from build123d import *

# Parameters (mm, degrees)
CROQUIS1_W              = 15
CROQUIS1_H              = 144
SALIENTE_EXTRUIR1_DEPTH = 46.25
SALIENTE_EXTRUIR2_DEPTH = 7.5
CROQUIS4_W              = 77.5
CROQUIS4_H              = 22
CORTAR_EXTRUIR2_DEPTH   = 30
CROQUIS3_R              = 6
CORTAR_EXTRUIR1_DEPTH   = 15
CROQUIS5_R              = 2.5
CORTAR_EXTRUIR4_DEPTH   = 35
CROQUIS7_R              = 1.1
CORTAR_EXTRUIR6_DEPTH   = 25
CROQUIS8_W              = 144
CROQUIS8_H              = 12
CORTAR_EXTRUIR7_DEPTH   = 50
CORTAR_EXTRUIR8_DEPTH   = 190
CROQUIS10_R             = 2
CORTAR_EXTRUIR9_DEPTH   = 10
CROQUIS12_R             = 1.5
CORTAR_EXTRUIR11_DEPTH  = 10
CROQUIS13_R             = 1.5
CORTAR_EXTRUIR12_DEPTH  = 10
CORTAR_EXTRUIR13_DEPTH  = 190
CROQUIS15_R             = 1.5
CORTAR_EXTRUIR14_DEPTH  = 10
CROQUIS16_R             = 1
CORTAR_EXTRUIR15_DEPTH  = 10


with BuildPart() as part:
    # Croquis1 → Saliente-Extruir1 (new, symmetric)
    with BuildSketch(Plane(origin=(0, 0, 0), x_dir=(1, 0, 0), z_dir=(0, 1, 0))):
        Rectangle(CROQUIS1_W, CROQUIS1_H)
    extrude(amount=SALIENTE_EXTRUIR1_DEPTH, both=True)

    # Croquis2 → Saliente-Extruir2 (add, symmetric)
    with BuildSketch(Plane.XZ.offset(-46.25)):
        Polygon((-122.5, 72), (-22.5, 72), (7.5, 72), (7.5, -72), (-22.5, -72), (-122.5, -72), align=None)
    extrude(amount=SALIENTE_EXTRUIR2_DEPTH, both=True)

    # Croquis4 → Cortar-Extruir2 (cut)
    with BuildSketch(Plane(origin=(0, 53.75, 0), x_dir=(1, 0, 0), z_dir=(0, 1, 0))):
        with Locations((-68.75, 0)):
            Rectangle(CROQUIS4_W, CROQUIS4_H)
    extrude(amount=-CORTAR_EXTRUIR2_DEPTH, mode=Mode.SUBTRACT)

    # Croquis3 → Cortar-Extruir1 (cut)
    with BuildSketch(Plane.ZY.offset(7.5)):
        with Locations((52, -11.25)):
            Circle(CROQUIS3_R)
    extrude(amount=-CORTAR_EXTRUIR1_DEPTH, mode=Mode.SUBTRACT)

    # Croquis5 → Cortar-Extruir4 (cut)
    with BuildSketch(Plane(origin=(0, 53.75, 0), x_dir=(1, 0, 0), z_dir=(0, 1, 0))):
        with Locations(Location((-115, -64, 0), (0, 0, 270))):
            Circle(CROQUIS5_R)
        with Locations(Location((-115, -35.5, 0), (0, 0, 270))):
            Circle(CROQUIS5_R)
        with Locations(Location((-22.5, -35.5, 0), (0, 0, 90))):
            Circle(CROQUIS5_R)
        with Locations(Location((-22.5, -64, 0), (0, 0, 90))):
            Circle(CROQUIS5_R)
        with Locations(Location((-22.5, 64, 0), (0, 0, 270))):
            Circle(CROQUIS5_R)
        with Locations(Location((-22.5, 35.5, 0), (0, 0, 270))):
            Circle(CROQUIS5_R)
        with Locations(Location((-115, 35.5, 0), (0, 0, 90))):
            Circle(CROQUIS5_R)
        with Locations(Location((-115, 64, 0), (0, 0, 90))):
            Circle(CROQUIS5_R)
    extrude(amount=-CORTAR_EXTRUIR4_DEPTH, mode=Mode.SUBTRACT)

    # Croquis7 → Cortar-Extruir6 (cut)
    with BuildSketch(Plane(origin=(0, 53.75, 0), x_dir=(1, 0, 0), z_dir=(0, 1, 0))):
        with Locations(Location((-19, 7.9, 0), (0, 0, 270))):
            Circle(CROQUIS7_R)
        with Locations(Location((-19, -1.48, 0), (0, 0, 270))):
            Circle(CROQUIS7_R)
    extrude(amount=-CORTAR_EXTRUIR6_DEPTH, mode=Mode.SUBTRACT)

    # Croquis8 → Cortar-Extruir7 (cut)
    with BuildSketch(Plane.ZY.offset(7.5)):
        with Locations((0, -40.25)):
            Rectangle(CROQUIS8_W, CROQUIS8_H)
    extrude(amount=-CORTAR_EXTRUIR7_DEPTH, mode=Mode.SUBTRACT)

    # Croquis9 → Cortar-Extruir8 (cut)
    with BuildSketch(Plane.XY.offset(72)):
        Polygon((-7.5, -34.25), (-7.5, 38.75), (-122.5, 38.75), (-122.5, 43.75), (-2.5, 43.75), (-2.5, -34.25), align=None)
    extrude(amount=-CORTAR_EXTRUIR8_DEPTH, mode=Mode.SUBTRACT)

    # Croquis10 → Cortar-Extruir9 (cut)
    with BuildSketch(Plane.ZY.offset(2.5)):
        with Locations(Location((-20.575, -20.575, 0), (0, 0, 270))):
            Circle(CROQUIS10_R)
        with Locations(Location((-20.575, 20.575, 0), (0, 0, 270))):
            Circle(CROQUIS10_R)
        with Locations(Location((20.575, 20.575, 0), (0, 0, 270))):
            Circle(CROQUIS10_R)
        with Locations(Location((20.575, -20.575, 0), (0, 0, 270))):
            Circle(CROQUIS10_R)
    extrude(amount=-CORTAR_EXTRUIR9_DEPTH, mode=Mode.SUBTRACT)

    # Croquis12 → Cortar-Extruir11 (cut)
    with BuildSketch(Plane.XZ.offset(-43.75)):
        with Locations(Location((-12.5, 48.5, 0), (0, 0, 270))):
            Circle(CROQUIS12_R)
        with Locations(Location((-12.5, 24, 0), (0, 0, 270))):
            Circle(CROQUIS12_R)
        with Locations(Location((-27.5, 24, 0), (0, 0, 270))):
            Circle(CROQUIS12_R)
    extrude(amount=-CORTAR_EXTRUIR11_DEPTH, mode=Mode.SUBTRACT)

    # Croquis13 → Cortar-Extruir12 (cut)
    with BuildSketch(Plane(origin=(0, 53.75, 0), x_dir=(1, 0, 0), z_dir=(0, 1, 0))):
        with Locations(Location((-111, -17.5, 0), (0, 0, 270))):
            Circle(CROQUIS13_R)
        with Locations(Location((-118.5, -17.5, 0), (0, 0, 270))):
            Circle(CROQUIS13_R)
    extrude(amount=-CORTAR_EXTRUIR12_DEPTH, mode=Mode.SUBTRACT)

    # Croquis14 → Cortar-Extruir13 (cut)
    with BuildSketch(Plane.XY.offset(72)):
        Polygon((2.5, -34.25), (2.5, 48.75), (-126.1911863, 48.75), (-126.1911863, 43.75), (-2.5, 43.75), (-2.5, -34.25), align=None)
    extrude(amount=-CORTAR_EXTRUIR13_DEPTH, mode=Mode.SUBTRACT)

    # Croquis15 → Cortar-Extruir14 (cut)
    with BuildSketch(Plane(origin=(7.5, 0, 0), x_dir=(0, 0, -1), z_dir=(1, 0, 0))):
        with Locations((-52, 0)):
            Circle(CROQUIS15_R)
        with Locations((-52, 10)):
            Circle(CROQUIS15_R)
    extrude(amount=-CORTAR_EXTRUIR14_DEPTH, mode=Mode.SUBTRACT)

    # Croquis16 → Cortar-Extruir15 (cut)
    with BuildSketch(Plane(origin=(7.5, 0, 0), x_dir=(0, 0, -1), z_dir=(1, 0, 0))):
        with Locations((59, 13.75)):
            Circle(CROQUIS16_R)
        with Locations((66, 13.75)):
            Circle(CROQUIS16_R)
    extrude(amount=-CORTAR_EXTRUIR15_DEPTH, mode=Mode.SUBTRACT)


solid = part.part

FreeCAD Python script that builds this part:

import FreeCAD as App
import Part
import Sketcher
from FreeCAD import Vector

doc = App.newDocument("Part")
body = doc.addObject("PartDesign::Body", "Body")

# Sketch on XZ plane
sketch1 = body.newObject("Sketcher::SketchObject", "Sketch")
sketch1.AttachmentSupport = (doc.getObject("XZ_Plane"), [""])
sketch1.MapMode = "FlatFace"
sketch1.addGeometry(Part.LineSegment(Vector(-8, -72, 0), Vector(-8, 72, 0)), False)
sketch1.addGeometry(Part.LineSegment(Vector(-8, 72, 0), Vector(8, 72, 0)), False)
sketch1.addGeometry(Part.LineSegment(Vector(8, 72, 0), Vector(8, -72, 0)), False)
sketch1.addGeometry(Part.LineSegment(Vector(8, -72, 0), Vector(-8, -72, 0)), False)
sketch1.addConstraint(Sketcher.Constraint("Coincident", 0, 2, 1, 1))
sketch1.addConstraint(Sketcher.Constraint("Coincident", 1, 2, 2, 1))
sketch1.addConstraint(Sketcher.Constraint("Coincident", 2, 2, 3, 1))
sketch1.addConstraint(Sketcher.Constraint("Coincident", 3, 2, 0, 1))
sketch1.addConstraint(Sketcher.Constraint("Vertical", 0))
sketch1.addConstraint(Sketcher.Constraint("Horizontal", 1))
sketch1.addConstraint(Sketcher.Constraint("Vertical", 2))
sketch1.addConstraint(Sketcher.Constraint("Horizontal", 3))
sketch1.addConstraint(Sketcher.Constraint("Symmetric", 0, 2, 2, 2, -1, 1))
sketch1.addConstraint(Sketcher.Constraint("DistanceX", 1, 1, 1, 2, 15.0))
sketch1.addConstraint(Sketcher.Constraint("DistanceY", 0, 1, 0, 2, 144.0))
pad1 = body.newObject("PartDesign::Pad", "Pad")
pad1.Profile = sketch1
pad1.Length = 92.5
pad1.Midplane = True

# Sketch on XZ plane
sketch2 = body.newObject("Sketcher::SketchObject", "Sketch001")
sketch2.AttachmentSupport = (doc.getObject("XZ_Plane"), [""])
sketch2.MapMode = "FlatFace"
sketch2.AttachmentOffset = App.Placement(Vector(0, 0, -46.25), App.Rotation())
sketch2.addGeometry(Part.LineSegment(Vector(8, 72, 0), Vector(-122, 72, 0)), False)
sketch2.addGeometry(Part.LineSegment(Vector(-122, 72, 0), Vector(-122, -72, 0)), False)
sketch2.addGeometry(Part.LineSegment(Vector(-122, -72, 0), Vector(8, -72, 0)), False)
sketch2.addGeometry(Part.LineSegment(Vector(8, -72, 0), Vector(8, 72, 0)), False)
sketch2.addConstraint(Sketcher.Constraint("Coincident", 0, 2, 1, 1))
sketch2.addConstraint(Sketcher.Constraint("Coincident", 1, 2, 2, 1))
sketch2.addConstraint(Sketcher.Constraint("Coincident", 2, 2, 3, 1))
sketch2.addConstraint(Sketcher.Constraint("Coincident", 3, 2, 0, 1))
sketch2.addConstraint(Sketcher.Constraint("Horizontal", 0))
sketch2.addConstraint(Sketcher.Constraint("Vertical", 1))
sketch2.addConstraint(Sketcher.Constraint("Horizontal", 2))
sketch2.addConstraint(Sketcher.Constraint("Vertical", 3))
sketch2.addConstraint(Sketcher.Constraint("DistanceX", 0, 2, 0, 1, 130.0))
sketch2.addConstraint(Sketcher.Constraint("DistanceY", 1, 2, 1, 1, 144.0))
sketch2.addConstraint(Sketcher.Constraint("DistanceY", -1, 1, 0, 2, 72.0))
sketch2.addConstraint(Sketcher.Constraint("DistanceX", 0, 2, -1, 1, 122.5))
pad2 = body.newObject("PartDesign::Pad", "Pad001")
pad2.Profile = sketch2
pad2.Length = 15
pad2.Midplane = True

# Sketch on XZ plane
sketch3 = body.newObject("Sketcher::SketchObject", "Sketch002")
sketch3.AttachmentSupport = (doc.getObject("XZ_Plane"), [""])
sketch3.MapMode = "FlatFace"
sketch3.AttachmentOffset = App.Placement(Vector(0, 0, -53.75), App.Rotation())
sketch3.addGeometry(Part.LineSegment(Vector(-108, -11, 0), Vector(-108, 11, 0)), False)
sketch3.addGeometry(Part.LineSegment(Vector(-108, 11, 0), Vector(-30, 11, 0)), False)
sketch3.addGeometry(Part.LineSegment(Vector(-30, 11, 0), Vector(-30, -11, 0)), False)
sketch3.addGeometry(Part.LineSegment(Vector(-30, -11, 0), Vector(-108, -11, 0)), False)
sketch3.addConstraint(Sketcher.Constraint("Coincident", 0, 2, 1, 1))
sketch3.addConstraint(Sketcher.Constraint("Coincident", 1, 2, 2, 1))
sketch3.addConstraint(Sketcher.Constraint("Coincident", 2, 2, 3, 1))
sketch3.addConstraint(Sketcher.Constraint("Coincident", 3, 2, 0, 1))
sketch3.addConstraint(Sketcher.Constraint("Vertical", 0))
sketch3.addConstraint(Sketcher.Constraint("Horizontal", 1))
sketch3.addConstraint(Sketcher.Constraint("Vertical", 2))
sketch3.addConstraint(Sketcher.Constraint("Horizontal", 3))
sketch3.addConstraint(Sketcher.Constraint("DistanceY", 0, 1, 0, 2, 22.0))
sketch3.addConstraint(Sketcher.Constraint("DistanceX", 1, 1, 1, 2, 77.5))
sketch3.addConstraint(Sketcher.Constraint("DistanceY", -1, 1, 0, 2, 11.0))
sketch3.addConstraint(Sketcher.Constraint("DistanceX", 1, 2, -1, 1, 30.0))
pocket1 = body.newObject("PartDesign::Pocket", "Pocket")
pocket1.Profile = sketch3
pocket1.Length = 30
pocket1.Reversed = True

# Sketch on YZ plane
sketch4 = body.newObject("Sketcher::SketchObject", "Sketch003")
sketch4.AttachmentSupport = (doc.getObject("YZ_Plane"), [""])
sketch4.MapMode = "FlatFace"
sketch4.AttachmentOffset = App.Placement(Vector(0, 0, -7.5), App.Rotation())
sketch4.addGeometry(Part.Circle(Vector(-11, 52, 0), Vector(0, 0, 1), 6), False)
sketch4.addConstraint(Sketcher.Constraint("Diameter", 0, 12.0))
sketch4.addConstraint(Sketcher.Constraint("DistanceY", -1, 1, 0, 3, 52.0))
sketch4.addConstraint(Sketcher.Constraint("DistanceX", 0, 3, -1, 1, 11.25))
pocket2 = body.newObject("PartDesign::Pocket", "Pocket001")
pocket2.Profile = sketch4
pocket2.Length = 15
pocket2.Reversed = True

# Sketch on XZ plane
sketch5 = body.newObject("Sketcher::SketchObject", "Sketch004")
sketch5.AttachmentSupport = (doc.getObject("XZ_Plane"), [""])
sketch5.MapMode = "FlatFace"
sketch5.AttachmentOffset = App.Placement(Vector(0, 0, -53.75), App.Rotation())
sketch5.addGeometry(Part.Circle(Vector(-115, 64, 0), Vector(0, 0, 1), 2.5), False)
sketch5.addGeometry(Part.Circle(Vector(-115, 35.5, 0), Vector(0, 0, 1), 2.5), False)
sketch5.addGeometry(Part.Circle(Vector(-22.5, 35.5, 0), Vector(0, 0, 1), 2.5), False)
sketch5.addGeometry(Part.Circle(Vector(-22.5, 64, 0), Vector(0, 0, 1), 2.5), False)
sketch5.addGeometry(Part.Circle(Vector(-22.5, -64, 0), Vector(0, 0, 1), 2.5), False)
sketch5.addGeometry(Part.Circle(Vector(-22.5, -35.5, 0), Vector(0, 0, 1), 2.5), False)
sketch5.addGeometry(Part.Circle(Vector(-115, -35.5, 0), Vector(0, 0, 1), 2.5), False)
sketch5.addGeometry(Part.Circle(Vector(-115, -64, 0), Vector(0, 0, 1), 2.5), False)
sketch5.addConstraint(Sketcher.Constraint("Equal", 0, 1))
sketch5.addConstraint(Sketcher.Constraint("Equal", 1, 2))
sketch5.addConstraint(Sketcher.Constraint("Equal", 2, 3))
sketch5.addConstraint(Sketcher.Constraint("Equal", 3, 4))
sketch5.addConstraint(Sketcher.Constraint("Equal", 4, 5))
sketch5.addConstraint(Sketcher.Constraint("Equal", 5, 6))
sketch5.addConstraint(Sketcher.Constraint("Equal", 6, 7))
sketch5.addConstraint(Sketcher.Constraint("Symmetric", 3, 3, 4, 3, -1))
sketch5.addConstraint(Sketcher.Constraint("Symmetric", 2, 3, 5, 3, -1))
sketch5.addConstraint(Sketcher.Constraint("Symmetric", 1, 3, 6, 3, -1))
sketch5.addConstraint(Sketcher.Constraint("Symmetric", 0, 3, 7, 3, -1))
sketch5.addConstraint(Sketcher.Constraint("Horizontal", 1, 3, 2, 3))
sketch5.addConstraint(Sketcher.Constraint("Horizontal", 0, 3, 3, 3))
sketch5.addConstraint(Sketcher.Constraint("Vertical", 0, 3, 1, 3))
sketch5.addConstraint(Sketcher.Constraint("Vertical", 2, 3, 3, 3))
sketch5.addConstraint(Sketcher.Constraint("Diameter", 0, 5.0))
sketch5.addConstraint(Sketcher.Constraint("DistanceX", 0, 3, -1, 1, 115.0))
sketch5.addConstraint(Sketcher.Constraint("DistanceY", -1, 1, 0, 3, 64.0))
sketch5.addConstraint(Sketcher.Constraint("DistanceY", 5, 3, 2, 3, 71.0))
sketch5.addConstraint(Sketcher.Constraint("DistanceX", 2, 3, -1, 1, 22.5))
pocket3 = body.newObject("PartDesign::Pocket", "Pocket002")
pocket3.Profile = sketch5
pocket3.Length = 35
pocket3.Reversed = True

# Sketch on XZ plane
sketch6 = body.newObject("Sketcher::SketchObject", "Sketch005")
sketch6.AttachmentSupport = (doc.getObject("XZ_Plane"), [""])
sketch6.MapMode = "FlatFace"
sketch6.AttachmentOffset = App.Placement(Vector(0, 0, -53.75), App.Rotation())
sketch6.addGeometry(Part.Circle(Vector(-19, -7.9, 0), Vector(0, 0, 1), 1.1), False)
sketch6.addGeometry(Part.Circle(Vector(-19, 1.5, 0), Vector(0, 0, 1), 1.1), False)
sketch6.addConstraint(Sketcher.Constraint("Equal", 0, 1))
sketch6.addConstraint(Sketcher.Constraint("Vertical", 0, 3, 1, 3))
sketch6.addConstraint(Sketcher.Constraint("Diameter", 0, 2.2))
sketch6.addConstraint(Sketcher.Constraint("DistanceX", 0, 3, -1, 1, 19.0))
sketch6.addConstraint(Sketcher.Constraint("DistanceY", 0, 3, -1, 1, 7.9))
sketch6.addConstraint(Sketcher.Constraint("DistanceY", -1, 1, 1, 3, 1.48))
pocket4 = body.newObject("PartDesign::Pocket", "Pocket003")
pocket4.Profile = sketch6
pocket4.Length = 25
pocket4.Reversed = True

# Sketch on YZ plane
sketch7 = body.newObject("Sketcher::SketchObject", "Sketch006")
sketch7.AttachmentSupport = (doc.getObject("YZ_Plane"), [""])
sketch7.MapMode = "FlatFace"
sketch7.AttachmentOffset = App.Placement(Vector(0, 0, -7.5), App.Rotation())
sketch7.addGeometry(Part.LineSegment(Vector(-34, -72, 0), Vector(-46, -72, 0)), False)
sketch7.addGeometry(Part.LineSegment(Vector(-46, -72, 0), Vector(-46, 72, 0)), False)
sketch7.addGeometry(Part.LineSegment(Vector(-46, 72, 0), Vector(-34, 72, 0)), False)
sketch7.addGeometry(Part.LineSegment(Vector(-34, 72, 0), Vector(-34, -72, 0)), False)
sketch7.addConstraint(Sketcher.Constraint("Coincident", 0, 2, 1, 1))
sketch7.addConstraint(Sketcher.Constraint("Coincident", 1, 2, 2, 1))
sketch7.addConstraint(Sketcher.Constraint("Coincident", 2, 2, 3, 1))
sketch7.addConstraint(Sketcher.Constraint("Coincident", 3, 2, 0, 1))
sketch7.addConstraint(Sketcher.Constraint("Horizontal", 0))
sketch7.addConstraint(Sketcher.Constraint("Vertical", 1))
sketch7.addConstraint(Sketcher.Constraint("Horizontal", 2))
sketch7.addConstraint(Sketcher.Constraint("Vertical", 3))
sketch7.addConstraint(Sketcher.Constraint("DistanceX", 0, 2, 0, 1, 12.0))
sketch7.addConstraint(Sketcher.Constraint("DistanceY", 1, 1, 1, 2, 144.0))
sketch7.addConstraint(Sketcher.Constraint("DistanceY", 0, 2, -1, 1, 72.0))
sketch7.addConstraint(Sketcher.Constraint("DistanceX", 0, 2, -1, 1, 46.25))
pocket5 = body.newObject("PartDesign::Pocket", "Pocket004")
pocket5.Profile = sketch7
pocket5.Length = 50
pocket5.Reversed = True

# Sketch on XY plane
sketch8 = body.newObject("Sketcher::SketchObject", "Sketch007")
sketch8.AttachmentSupport = (doc.getObject("XY_Plane"), [""])
sketch8.MapMode = "FlatFace"
sketch8.AttachmentOffset = App.Placement(Vector(0, 0, 72), App.Rotation())
sketch8.addGeometry(Part.LineSegment(Vector(-8, 39, 0), Vector(-8, -34, 0)), False)
sketch8.addGeometry(Part.LineSegment(Vector(-8, -34, 0), Vector(-2, -34, 0)), False)
sketch8.addGeometry(Part.LineSegment(Vector(-2, -34, 0), Vector(-2, 44, 0)), False)
sketch8.addGeometry(Part.LineSegment(Vector(-2, 44, 0), Vector(-122, 44, 0)), False)
sketch8.addGeometry(Part.LineSegment(Vector(-122, 44, 0), Vector(-122, 39, 0)), False)
sketch8.addGeometry(Part.LineSegment(Vector(-122, 39, 0), Vector(-8, 39, 0)), False)
sketch8.addConstraint(Sketcher.Constraint("Coincident", 0, 2, 1, 1))
sketch8.addConstraint(Sketcher.Constraint("Coincident", 1, 2, 2, 1))
sketch8.addConstraint(Sketcher.Constraint("Coincident", 2, 2, 3, 1))
sketch8.addConstraint(Sketcher.Constraint("Coincident", 3, 2, 4, 1))
sketch8.addConstraint(Sketcher.Constraint("Coincident", 4, 2, 5, 1))
sketch8.addConstraint(Sketcher.Constraint("Coincident", 5, 2, 0, 1))
sketch8.addConstraint(Sketcher.Constraint("Vertical", 0))
sketch8.addConstraint(Sketcher.Constraint("Horizontal", 1))
sketch8.addConstraint(Sketcher.Constraint("Vertical", 2))
sketch8.addConstraint(Sketcher.Constraint("Horizontal", 3))
sketch8.addConstraint(Sketcher.Constraint("Vertical", 4))
sketch8.addConstraint(Sketcher.Constraint("Horizontal", 5))
sketch8.addConstraint(Sketcher.Constraint("Equal", 1, 4))
sketch8.addConstraint(Sketcher.Constraint("DistanceX", 1, 1, 1, 2, 5.0))
sketch8.addConstraint(Sketcher.Constraint("DistanceX", 3, 2, 3, 1, 120.0))
sketch8.addConstraint(Sketcher.Constraint("DistanceY", 0, 2, 0, 1, 73.0))
sketch8.addConstraint(Sketcher.Constraint("DistanceX", 0, 2, -1, 1, 7.5))
sketch8.addConstraint(Sketcher.Constraint("DistanceY", 0, 2, -1, 1, 34.25))
pocket6 = body.newObject("PartDesign::Pocket", "Pocket005")
pocket6.Profile = sketch8
pocket6.Length = 190

# Sketch on YZ plane
sketch9 = body.newObject("Sketcher::SketchObject", "Sketch008")
sketch9.AttachmentSupport = (doc.getObject("YZ_Plane"), [""])
sketch9.MapMode = "FlatFace"
sketch9.AttachmentOffset = App.Placement(Vector(0, 0, -2.5), App.Rotation())
sketch9.addGeometry(Part.Circle(Vector(-20.6, -20.6, 0), Vector(0, 0, 1), 2), False)
sketch9.addGeometry(Part.Circle(Vector(20.6, -20.6, 0), Vector(0, 0, 1), 2), False)
sketch9.addGeometry(Part.Circle(Vector(20.6, 20.6, 0), Vector(0, 0, 1), 2), False)
sketch9.addGeometry(Part.Circle(Vector(-20.6, 20.6, 0), Vector(0, 0, 1), 2), False)
sketch9.addConstraint(Sketcher.Constraint("Equal", 0, 1))
sketch9.addConstraint(Sketcher.Constraint("Equal", 1, 2))
sketch9.addConstraint(Sketcher.Constraint("Equal", 2, 3))
sketch9.addConstraint(Sketcher.Constraint("Symmetric", 0, 3, 2, 3, -1, 1))
sketch9.addConstraint(Sketcher.Constraint("Symmetric", 1, 3, 3, 3, -1, 1))
sketch9.addConstraint(Sketcher.Constraint("Symmetric", 0, 3, 1, 3, -2))
sketch9.addConstraint(Sketcher.Constraint("Diameter", 0, 4.0))
sketch9.addConstraint(Sketcher.Constraint("DistanceX", 0, 3, 1, 3, 41.15))
sketch9.addConstraint(Sketcher.Constraint("DistanceY", 1, 3, 2, 3, 41.15))
pocket7 = body.newObject("PartDesign::Pocket", "Pocket006")
pocket7.Profile = sketch9
pocket7.Length = 10
pocket7.Reversed = True

# Sketch on XZ plane
sketch10 = body.newObject("Sketcher::SketchObject", "Sketch009")
sketch10.AttachmentSupport = (doc.getObject("XZ_Plane"), [""])
sketch10.MapMode = "FlatFace"
sketch10.AttachmentOffset = App.Placement(Vector(0, 0, -43.75), App.Rotation())
sketch10.addGeometry(Part.Circle(Vector(-12.5, 48.5, 0), Vector(0, 0, 1), 1.5), False)
sketch10.addGeometry(Part.Circle(Vector(-12.5, 24, 0), Vector(0, 0, 1), 1.5), False)
sketch10.addGeometry(Part.Circle(Vector(-27.5, 24, 0), Vector(0, 0, 1), 1.5), False)
sketch10.addConstraint(Sketcher.Constraint("Equal", 0, 1))
sketch10.addConstraint(Sketcher.Constraint("Equal", 1, 2))
sketch10.addConstraint(Sketcher.Constraint("Horizontal", 1, 3, 2, 3))
sketch10.addConstraint(Sketcher.Constraint("Vertical", 0, 3, 1, 3))
sketch10.addConstraint(Sketcher.Constraint("Diameter", 0, 3.0))
sketch10.addConstraint(Sketcher.Constraint("DistanceY", -1, 1, 1, 3, 24.0))
sketch10.addConstraint(Sketcher.Constraint("DistanceX", 2, 3, 1, 3, 15.0))
sketch10.addConstraint(Sketcher.Constraint("DistanceX", 0, 3, -1, 1, 12.5))
sketch10.addConstraint(Sketcher.Constraint("DistanceY", -1, 1, 0, 3, 48.5))
pocket8 = body.newObject("PartDesign::Pocket", "Pocket007")
pocket8.Profile = sketch10
pocket8.Length = 10

# Sketch on XZ plane
sketch11 = body.newObject("Sketcher::SketchObject", "Sketch010")
sketch11.AttachmentSupport = (doc.getObject("XZ_Plane"), [""])
sketch11.MapMode = "FlatFace"
sketch11.AttachmentOffset = App.Placement(Vector(0, 0, -53.75), App.Rotation())
sketch11.addGeometry(Part.Circle(Vector(-111, 17.5, 0), Vector(0, 0, 1), 1.5), False)
sketch11.addGeometry(Part.Circle(Vector(-118.5, 17.5, 0), Vector(0, 0, 1), 1.5), False)
sketch11.addConstraint(Sketcher.Constraint("Equal", 0, 1))
sketch11.addConstraint(Sketcher.Constraint("Horizontal", 0, 3, 1, 3))
sketch11.addConstraint(Sketcher.Constraint("Diameter", 0, 3.0))
sketch11.addConstraint(Sketcher.Constraint("DistanceX", 0, 3, -1, 1, 111.0))
sketch11.addConstraint(Sketcher.Constraint("DistanceY", -1, 1, 0, 3, 17.5))
sketch11.addConstraint(Sketcher.Constraint("DistanceX", 1, 3, -1, 1, 118.5))
pocket9 = body.newObject("PartDesign::Pocket", "Pocket008")
pocket9.Profile = sketch11
pocket9.Length = 10
pocket9.Reversed = True

# Sketch on XY plane
sketch12 = body.newObject("Sketcher::SketchObject", "Sketch011")
sketch12.AttachmentSupport = (doc.getObject("XY_Plane"), [""])
sketch12.MapMode = "FlatFace"
sketch12.AttachmentOffset = App.Placement(Vector(0, 0, 72), App.Rotation())
sketch12.addGeometry(Part.LineSegment(Vector(2, -34, 0), Vector(2, 49, 0)), False)
sketch12.addGeometry(Part.LineSegment(Vector(2, 49, 0), Vector(-126, 49, 0)), False)
sketch12.addGeometry(Part.LineSegment(Vector(-126, 49, 0), Vector(-126, 44, 0)), False)
sketch12.addGeometry(Part.LineSegment(Vector(-126, 44, 0), Vector(-2, 44, 0)), False)
sketch12.addGeometry(Part.LineSegment(Vector(-2, 44, 0), Vector(-2, -34, 0)), False)
sketch12.addGeometry(Part.LineSegment(Vector(-2, -34, 0), Vector(2, -34, 0)), False)
sketch12.addConstraint(Sketcher.Constraint("Coincident", 0, 2, 1, 1))
sketch12.addConstraint(Sketcher.Constraint("Coincident", 1, 2, 2, 1))
sketch12.addConstraint(Sketcher.Constraint("Coincident", 2, 2, 3, 1))
sketch12.addConstraint(Sketcher.Constraint("Coincident", 3, 2, 4, 1))
sketch12.addConstraint(Sketcher.Constraint("Coincident", 4, 2, 5, 1))
sketch12.addConstraint(Sketcher.Constraint("Coincident", 5, 2, 0, 1))
sketch12.addConstraint(Sketcher.Constraint("Vertical", 0))
sketch12.addConstraint(Sketcher.Constraint("Horizontal", 1))
sketch12.addConstraint(Sketcher.Constraint("Vertical", 2))
sketch12.addConstraint(Sketcher.Constraint("Horizontal", 3))
sketch12.addConstraint(Sketcher.Constraint("Vertical", 4))
sketch12.addConstraint(Sketcher.Constraint("Horizontal", 5))
sketch12.addConstraint(Sketcher.Constraint("Equal", 5, 2))
sketch12.addConstraint(Sketcher.Constraint("DistanceX", 5, 1, 5, 2, 5.0))
sketch12.addConstraint(Sketcher.Constraint("DistanceY", 0, 1, 0, 2, 83.0))
sketch12.addConstraint(Sketcher.Constraint("DistanceX", -1, 1, 0, 2, 2.5))
sketch12.addConstraint(Sketcher.Constraint("DistanceY", -1, 1, 0, 2, 48.75))
sketch12.addConstraint(Sketcher.Constraint("DistanceX", 1, 2, 1, 1, 128.691186))
pocket10 = body.newObject("PartDesign::Pocket", "Pocket009")
pocket10.Profile = sketch12
pocket10.Length = 190

# Sketch on YZ plane
sketch13 = body.newObject("Sketcher::SketchObject", "Sketch012")
sketch13.AttachmentSupport = (doc.getObject("YZ_Plane"), [""])
sketch13.MapMode = "FlatFace"
sketch13.AttachmentOffset = App.Placement(Vector(0, 0, 7.5), App.Rotation())
sketch13.addGeometry(Part.Circle(Vector(0, 52, 0), Vector(0, 0, 1), 1.5), False)
sketch13.addGeometry(Part.Circle(Vector(10, 52, 0), Vector(0, 0, 1), 1.5), False)
sketch13.addConstraint(Sketcher.Constraint("Equal", 0, 1))
sketch13.addConstraint(Sketcher.Constraint("PointOnObject", 0, 3, -2))
sketch13.addConstraint(Sketcher.Constraint("Horizontal", 0, 3, 1, 3))
sketch13.addConstraint(Sketcher.Constraint("Diameter", 0, 3.0))
sketch13.addConstraint(Sketcher.Constraint("DistanceY", -1, 1, 0, 3, 52.0))
sketch13.addConstraint(Sketcher.Constraint("DistanceX", -1, 1, 1, 3, 10.0))
pocket11 = body.newObject("PartDesign::Pocket", "Pocket010")
pocket11.Profile = sketch13
pocket11.Length = 10

# Sketch on YZ plane
sketch14 = body.newObject("Sketcher::SketchObject", "Sketch013")
sketch14.AttachmentSupport = (doc.getObject("YZ_Plane"), [""])
sketch14.MapMode = "FlatFace"
sketch14.AttachmentOffset = App.Placement(Vector(0, 0, 7.5), App.Rotation())
sketch14.addGeometry(Part.Circle(Vector(13.8, -59, 0), Vector(0, 0, 1), 1), False)
sketch14.addGeometry(Part.Circle(Vector(13.8, -66, 0), Vector(0, 0, 1), 1), False)
sketch14.addConstraint(Sketcher.Constraint("Equal", 0, 1))
sketch14.addConstraint(Sketcher.Constraint("Vertical", 0, 3, 1, 3))
sketch14.addConstraint(Sketcher.Constraint("Diameter", 0, 2.0))
sketch14.addConstraint(Sketcher.Constraint("DistanceY", 0, 3, -1, 1, 59.0))
sketch14.addConstraint(Sketcher.Constraint("DistanceY", 1, 3, -1, 1, 66.0))
sketch14.addConstraint(Sketcher.Constraint("DistanceX", -1, 1, 0, 3, 13.75))
pocket12 = body.newObject("PartDesign::Pocket", "Pocket011")
pocket12.Profile = sketch14
pocket12.Length = 10

doc.recompute()
